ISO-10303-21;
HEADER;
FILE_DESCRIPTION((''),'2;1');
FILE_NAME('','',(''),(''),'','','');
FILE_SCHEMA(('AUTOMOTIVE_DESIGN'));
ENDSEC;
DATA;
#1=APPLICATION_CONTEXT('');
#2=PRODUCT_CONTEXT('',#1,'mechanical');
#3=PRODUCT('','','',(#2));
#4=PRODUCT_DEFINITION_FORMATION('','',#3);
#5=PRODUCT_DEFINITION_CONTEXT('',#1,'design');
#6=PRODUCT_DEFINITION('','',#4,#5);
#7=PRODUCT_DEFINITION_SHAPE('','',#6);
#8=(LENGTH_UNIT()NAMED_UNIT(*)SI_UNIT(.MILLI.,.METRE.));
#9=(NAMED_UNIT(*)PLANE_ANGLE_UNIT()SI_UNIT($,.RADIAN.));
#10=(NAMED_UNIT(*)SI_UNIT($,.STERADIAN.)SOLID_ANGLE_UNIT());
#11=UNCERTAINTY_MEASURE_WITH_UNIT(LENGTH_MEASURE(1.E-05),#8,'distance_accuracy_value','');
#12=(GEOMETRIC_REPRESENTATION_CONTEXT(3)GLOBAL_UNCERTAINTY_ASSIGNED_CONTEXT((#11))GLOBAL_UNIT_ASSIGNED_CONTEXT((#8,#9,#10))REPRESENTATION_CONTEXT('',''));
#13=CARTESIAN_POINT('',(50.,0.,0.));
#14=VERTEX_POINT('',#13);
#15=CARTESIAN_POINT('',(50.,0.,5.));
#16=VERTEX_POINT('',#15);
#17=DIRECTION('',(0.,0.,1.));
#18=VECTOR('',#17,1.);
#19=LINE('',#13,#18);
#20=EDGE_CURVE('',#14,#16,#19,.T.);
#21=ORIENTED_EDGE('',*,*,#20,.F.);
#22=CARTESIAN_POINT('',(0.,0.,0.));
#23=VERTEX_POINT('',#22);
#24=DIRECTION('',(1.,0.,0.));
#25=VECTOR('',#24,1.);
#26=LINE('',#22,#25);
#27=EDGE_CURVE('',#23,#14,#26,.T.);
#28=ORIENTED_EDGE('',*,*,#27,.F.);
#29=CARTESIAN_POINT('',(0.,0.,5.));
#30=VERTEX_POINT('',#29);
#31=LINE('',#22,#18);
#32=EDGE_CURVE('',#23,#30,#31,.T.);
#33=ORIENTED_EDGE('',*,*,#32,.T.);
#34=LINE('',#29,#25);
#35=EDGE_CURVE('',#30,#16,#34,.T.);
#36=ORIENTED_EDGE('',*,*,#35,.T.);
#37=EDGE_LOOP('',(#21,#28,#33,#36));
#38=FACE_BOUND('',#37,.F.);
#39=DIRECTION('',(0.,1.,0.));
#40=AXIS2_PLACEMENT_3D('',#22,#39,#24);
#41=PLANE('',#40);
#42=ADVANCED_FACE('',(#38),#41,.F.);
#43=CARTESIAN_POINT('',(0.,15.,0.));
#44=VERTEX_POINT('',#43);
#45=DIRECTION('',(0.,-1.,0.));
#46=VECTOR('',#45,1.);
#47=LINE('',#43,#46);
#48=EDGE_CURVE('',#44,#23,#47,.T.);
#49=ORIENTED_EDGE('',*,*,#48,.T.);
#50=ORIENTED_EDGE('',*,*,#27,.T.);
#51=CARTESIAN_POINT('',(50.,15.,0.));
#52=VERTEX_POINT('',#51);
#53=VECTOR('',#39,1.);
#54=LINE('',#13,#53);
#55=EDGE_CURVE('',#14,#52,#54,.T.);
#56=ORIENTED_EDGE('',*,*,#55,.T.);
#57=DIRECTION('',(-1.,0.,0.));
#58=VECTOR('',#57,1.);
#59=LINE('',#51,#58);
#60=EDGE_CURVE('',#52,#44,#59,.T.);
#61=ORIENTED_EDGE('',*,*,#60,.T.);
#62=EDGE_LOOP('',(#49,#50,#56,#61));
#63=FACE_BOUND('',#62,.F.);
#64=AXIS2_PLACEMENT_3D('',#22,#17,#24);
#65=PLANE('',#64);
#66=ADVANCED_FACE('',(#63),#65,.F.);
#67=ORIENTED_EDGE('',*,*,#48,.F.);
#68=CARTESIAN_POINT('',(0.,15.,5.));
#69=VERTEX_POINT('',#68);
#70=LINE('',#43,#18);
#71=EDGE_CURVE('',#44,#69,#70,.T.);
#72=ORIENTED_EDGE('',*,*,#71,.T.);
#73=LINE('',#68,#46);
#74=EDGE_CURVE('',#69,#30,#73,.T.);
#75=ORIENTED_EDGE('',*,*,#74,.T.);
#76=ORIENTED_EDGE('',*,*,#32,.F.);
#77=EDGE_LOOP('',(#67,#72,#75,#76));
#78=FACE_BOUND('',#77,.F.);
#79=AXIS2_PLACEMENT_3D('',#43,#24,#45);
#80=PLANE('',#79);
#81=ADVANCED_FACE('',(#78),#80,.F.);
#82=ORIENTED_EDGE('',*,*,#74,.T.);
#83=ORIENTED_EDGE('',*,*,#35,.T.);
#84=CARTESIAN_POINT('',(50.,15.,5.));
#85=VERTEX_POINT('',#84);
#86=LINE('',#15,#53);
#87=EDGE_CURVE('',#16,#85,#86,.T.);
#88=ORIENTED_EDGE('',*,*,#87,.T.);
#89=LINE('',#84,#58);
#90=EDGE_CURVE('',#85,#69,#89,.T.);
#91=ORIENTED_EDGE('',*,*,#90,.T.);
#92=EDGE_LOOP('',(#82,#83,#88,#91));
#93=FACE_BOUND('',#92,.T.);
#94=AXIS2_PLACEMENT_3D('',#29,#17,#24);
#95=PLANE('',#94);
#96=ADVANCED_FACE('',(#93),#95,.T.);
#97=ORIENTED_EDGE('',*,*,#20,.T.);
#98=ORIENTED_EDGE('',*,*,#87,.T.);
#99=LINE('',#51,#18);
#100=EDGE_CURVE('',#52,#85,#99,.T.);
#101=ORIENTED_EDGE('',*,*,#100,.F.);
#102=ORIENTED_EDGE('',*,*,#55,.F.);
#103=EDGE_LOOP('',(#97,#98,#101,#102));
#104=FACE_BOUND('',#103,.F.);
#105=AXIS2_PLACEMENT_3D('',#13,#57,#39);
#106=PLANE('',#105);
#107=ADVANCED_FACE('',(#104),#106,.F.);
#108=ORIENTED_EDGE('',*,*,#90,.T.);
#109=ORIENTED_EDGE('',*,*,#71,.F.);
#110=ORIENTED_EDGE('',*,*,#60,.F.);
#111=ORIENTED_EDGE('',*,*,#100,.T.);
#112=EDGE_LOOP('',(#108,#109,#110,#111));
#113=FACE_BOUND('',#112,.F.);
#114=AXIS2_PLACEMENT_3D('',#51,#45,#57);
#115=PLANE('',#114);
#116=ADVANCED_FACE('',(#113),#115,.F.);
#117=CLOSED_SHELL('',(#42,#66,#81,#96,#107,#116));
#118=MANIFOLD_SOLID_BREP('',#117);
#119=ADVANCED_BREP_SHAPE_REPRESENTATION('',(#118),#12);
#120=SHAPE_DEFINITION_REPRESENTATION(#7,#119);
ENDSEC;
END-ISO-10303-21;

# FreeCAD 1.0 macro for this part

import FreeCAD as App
import Part
import Sketcher

V = App.Vector


def add_polygon(sketch, points):
    """Adds a closed chain of lines whose ends are joined by coincident constraints."""
    first, n = sketch.GeometryCount, len(points)
    for a, b in zip(points, points[1:] + points[:1]):
        sketch.addGeometry(Part.LineSegment(App.Vector(*a, 0), App.Vector(*b, 0)), False)
    for i in range(n):
        sketch.addConstraint(Sketcher.Constraint("Coincident", first + i, 2, first + (i + 1) % n, 1))

doc = App.newDocument("Part")
body = doc.addObject("PartDesign::Body", "Body")

sketch1 = body.newObject("Sketcher::SketchObject", "Sketch")
sketch1.AttachmentSupport = (doc.getObject("XY_Plane"), [""])
sketch1.MapMode = "FlatFace"
add_polygon(sketch1, [(0, 15), (0, 0), (50, 0), (50, 15)])
sketch1.addConstraint([
    Sketcher.Constraint("Vertical", 0),
    Sketcher.Constraint("Horizontal", 1),
    Sketcher.Constraint("Vertical", 2),
    Sketcher.Constraint("Horizontal", 3),
    Sketcher.Constraint("Coincident", 0, 2, -1, 1),
    Sketcher.Constraint("DistanceX", 1, 1, 1, 2, 50.0),
    Sketcher.Constraint("DistanceY", 0, 2, 0, 1, 15.0),
])
pad1 = body.newObject("PartDesign::Pad", "Pad")
pad1.Profile = sketch1
pad1.Length = 5

doc.recompute()
